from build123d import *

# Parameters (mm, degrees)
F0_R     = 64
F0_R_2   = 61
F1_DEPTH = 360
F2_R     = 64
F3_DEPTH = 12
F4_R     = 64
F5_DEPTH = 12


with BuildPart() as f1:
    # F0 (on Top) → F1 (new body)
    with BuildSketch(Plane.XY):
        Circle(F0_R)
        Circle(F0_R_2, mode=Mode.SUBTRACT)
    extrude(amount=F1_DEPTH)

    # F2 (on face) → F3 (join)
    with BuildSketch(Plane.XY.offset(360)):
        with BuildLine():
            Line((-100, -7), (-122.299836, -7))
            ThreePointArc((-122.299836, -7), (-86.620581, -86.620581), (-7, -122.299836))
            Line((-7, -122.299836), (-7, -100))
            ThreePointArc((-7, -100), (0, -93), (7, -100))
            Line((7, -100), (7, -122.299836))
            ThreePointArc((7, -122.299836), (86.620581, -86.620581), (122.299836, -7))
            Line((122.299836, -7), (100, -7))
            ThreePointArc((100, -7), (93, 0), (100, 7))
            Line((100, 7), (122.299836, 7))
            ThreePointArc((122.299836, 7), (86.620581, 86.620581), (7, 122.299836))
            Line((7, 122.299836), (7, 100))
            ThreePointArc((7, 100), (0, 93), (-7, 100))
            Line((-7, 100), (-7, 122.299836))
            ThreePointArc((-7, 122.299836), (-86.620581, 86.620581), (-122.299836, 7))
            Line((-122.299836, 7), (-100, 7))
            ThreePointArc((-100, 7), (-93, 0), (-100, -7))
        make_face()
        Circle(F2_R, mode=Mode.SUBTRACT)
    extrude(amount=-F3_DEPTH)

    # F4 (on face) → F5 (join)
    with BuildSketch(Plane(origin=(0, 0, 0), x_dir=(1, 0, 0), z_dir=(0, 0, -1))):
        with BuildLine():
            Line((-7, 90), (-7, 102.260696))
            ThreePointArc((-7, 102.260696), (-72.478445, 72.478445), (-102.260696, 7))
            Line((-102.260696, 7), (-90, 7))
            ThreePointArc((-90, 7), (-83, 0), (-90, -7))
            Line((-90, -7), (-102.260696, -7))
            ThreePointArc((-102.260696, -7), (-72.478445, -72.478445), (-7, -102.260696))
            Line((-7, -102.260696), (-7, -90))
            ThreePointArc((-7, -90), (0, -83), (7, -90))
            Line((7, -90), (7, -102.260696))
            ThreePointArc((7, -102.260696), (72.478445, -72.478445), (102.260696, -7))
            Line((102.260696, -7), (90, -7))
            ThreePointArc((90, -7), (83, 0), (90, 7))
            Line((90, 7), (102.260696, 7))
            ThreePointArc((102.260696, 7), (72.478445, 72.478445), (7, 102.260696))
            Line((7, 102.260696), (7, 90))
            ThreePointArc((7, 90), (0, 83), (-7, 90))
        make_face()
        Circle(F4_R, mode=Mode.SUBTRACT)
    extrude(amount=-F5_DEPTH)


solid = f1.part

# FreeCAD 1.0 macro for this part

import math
import FreeCAD as App
import Part
import Sketcher

V = App.Vector
Q = App.Units.Quantity

doc = App.newDocument("Part")
body = doc.addObject("PartDesign::Body", "Body")

# Sketch on XY plane
sketch1 = body.newObject("Sketcher::SketchObject", "Sketch")
sketch1.AttachmentSupport = (doc.getObject("XY_Plane"), [""])
sketch1.MapMode = "FlatFace"
sketch1.addGeometry([
    Part.Circle(V(0, 0, 0), V(0, 0, 1), 64),
    Part.Circle(V(0, 0, 0), V(0, 0, 1), 61),
], False)
sketch1.addConstraint([
    Sketcher.Constraint("Coincident", 0, 3, -1, 1),
    Sketcher.Constraint("Coincident", 1, 3, -1, 1),
    Sketcher.Constraint("Diameter", 0, Q("128 mm")),
    Sketcher.Constraint("Diameter", 1, Q("122 mm")),
])
pad1 = body.newObject("PartDesign::Pad", "Pad")
pad1.Profile = sketch1
pad1.Length = 360

# Sketch on XY plane
sketch2 = body.newObject("Sketcher::SketchObject", "Sketch001")
sketch2.AttachmentSupport = (doc.getObject("XY_Plane"), [""])
sketch2.MapMode = "FlatFace"
sketch2.AttachmentOffset = App.Placement(V(0, 0, 360), App.Rotation())
sketch2.addGeometry([
    Part.LineSegment(V(-100, -7, 0), V(-122, -7, 0)),  # 0
    Part.ArcOfCircle(Part.Circle(V(0, 0, 0), V(0, 0, 1), 122), math.radians(-177), math.radians(-93)),  # 1
    Part.LineSegment(V(-7, -122, 0), V(-7, -100, 0)),  # 2
    Part.ArcOfCircle(Part.Circle(V(0, -100, 0), V(0, 0, 1), 7), math.radians(0), math.radians(180)),  # 3
    Part.LineSegment(V(7, -100, 0), V(7, -122, 0)),  # 4
    Part.ArcOfCircle(Part.Circle(V(0, 0, 0), V(0, 0, 1), 122), math.radians(-87), math.radians(-3)),  # 5
    Part.LineSegment(V(122, -7, 0), V(100, -7, 0)),  # 6
    Part.ArcOfCircle(Part.Circle(V(100, 0, 0), V(0, 0, 1), 7), math.radians(90), math.radians(270)),  # 7
    Part.LineSegment(V(100, 7, 0), V(122, 7, 0)),  # 8
    Part.ArcOfCircle(Part.Circle(V(0, 0, 0), V(0, 0, 1), 122), math.radians(3), math.radians(87)),  # 9
    Part.LineSegment(V(7, 122, 0), V(7, 100, 0)),  # 10
    Part.ArcOfCircle(Part.Circle(V(0, 100, 0), V(0, 0, 1), 7), math.radians(180), math.radians(360)),  # 11
    Part.LineSegment(V(-7, 100, 0), V(-7, 122, 0)),  # 12
    Part.ArcOfCircle(Part.Circle(V(0, 0, 0), V(0, 0, 1), 122), math.radians(93), math.radians(177)),  # 13
    Part.LineSegment(V(-122, 7, 0), V(-100, 7, 0)),  # 14
    Part.ArcOfCircle(Part.Circle(V(-100, 0, 0), V(0, 0, 1), 7), math.radians(-90), math.radians(90)),  # 15
    Part.Circle(V(0, 0, 0), V(0, 0, 1), 64),  # 16
], False)
sketch2.addConstraint([
    Sketcher.Constraint("Coincident", 0, 2, 1, 1),
    Sketcher.Constraint("Coincident", 1, 2, 2, 1),
    Sketcher.Constraint("Tangent", 2, 2, 3, 2),
    Sketcher.Constraint("Tangent", 3, 1, 4, 1),
    Sketcher.Constraint("Coincident", 4, 2, 5, 1),
    Sketcher.Constraint("Coincident", 5, 2, 6, 1),
    Sketcher.Constraint("Tangent", 6, 2, 7, 2),
    Sketcher.Constraint("Tangent", 7, 1, 8, 1),
    Sketcher.Constraint("Coincident", 8, 2, 9, 1),
    Sketcher.Constraint("Coincident", 9, 2, 10, 1),
    Sketcher.Constraint("Tangent", 10, 2, 11, 2),
    Sketcher.Constraint("Tangent", 11, 1, 12, 1),
    Sketcher.Constraint("Coincident", 12, 2, 13, 1),
    Sketcher.Constraint("Coincident", 13, 2, 14, 1),
    Sketcher.Constraint("Tangent", 14, 2, 15, 2),
    Sketcher.Constraint("Tangent", 15, 1, 0, 1),
    Sketcher.Constraint("Horizontal", 0),
    Sketcher.Constraint("Vertical", 2),
    Sketcher.Constraint("Vertical", 4),
    Sketcher.Constraint("Horizontal", 6),
    Sketcher.Constraint("Horizontal", 8),
    Sketcher.Constraint("Vertical", 10),
    Sketcher.Constraint("Vertical", 12),
    Sketcher.Constraint("Horizontal", 14),
    Sketcher.Constraint("Coincident", 1, 3, -1, 1),
    Sketcher.Constraint("Coincident", 5, 3, -1, 1),
    Sketcher.Constraint("Coincident", 9, 3, -1, 1),
    Sketcher.Constraint("Coincident", 13, 3, -1, 1),
    Sketcher.Constraint("Coincident", 16, 3, -1, 1),
    Sketcher.Constraint("Equal", 1, 5),
    Sketcher.Constraint("Equal", 3, 7),
    Sketcher.Constraint("Equal", 5, 9),
    Sketcher.Constraint("Equal", 7, 11),
    Sketcher.Constraint("Equal", 9, 13),
    Sketcher.Constraint("Equal", 11, 15),
    Sketcher.Constraint("Symmetric", 3, 3, 11, 3, -1, 1),
    Sketcher.Constraint("Symmetric", 7, 3, 15, 3, -1, 1),
    Sketcher.Constraint("PointOnObject", 3, 3, -2),
    Sketcher.Constraint("PointOnObject", 7, 3, -1),
    Sketcher.Constraint("Equal", 14, 2),
    Sketcher.Constraint("Diameter", 16, Q("128 mm")),
    Sketcher.Constraint("Radius", 3, Q("7 mm")),
    Sketcher.Constraint("DistanceY", 3, 3, -1, 1, Q("100 mm")),
    Sketcher.Constraint("Radius", 1, Q("122.499997 mm")),
])
pad2 = body.newObject("PartDesign::Pad", "Pad001")
pad2.Profile = sketch2
pad2.Length = 12
pad2.Reversed = True

# Sketch on XY plane
sketch3 = body.newObject("Sketcher::SketchObject", "Sketch002")
sketch3.AttachmentSupport = (doc.getObject("XY_Plane"), [""])
sketch3.MapMode = "FlatFace"
sketch3.addGeometry([
    Part.LineSegment(V(-7, -90, 0), V(-7, -102, 0)),  # 0
    Part.ArcOfCircle(Part.Circle(V(0, 0, 0), V(0, 0, 1), 102), math.radians(-176), math.radians(-94)),  # 1
    Part.LineSegment(V(-102, -7, 0), V(-90, -7, 0)),  # 2
    Part.ArcOfCircle(Part.Circle(V(-90, 0, 0), V(0, 0, 1), 7), math.radians(-90), math.radians(90)),  # 3
    Part.LineSegment(V(-90, 7, 0), V(-102, 7, 0)),  # 4
    Part.ArcOfCircle(Part.Circle(V(0, 0, 0), V(0, 0, 1), 102), math.radians(94), math.radians(176)),  # 5
    Part.LineSegment(V(-7, 102, 0), V(-7, 90, 0)),  # 6
    Part.ArcOfCircle(Part.Circle(V(0, 90, 0), V(0, 0, 1), 7), math.radians(180), math.radians(360)),  # 7
    Part.LineSegment(V(7, 90, 0), V(7, 102, 0)),  # 8
    Part.ArcOfCircle(Part.Circle(V(0, 0, 0), V(0, 0, 1), 102), math.radians(4), math.radians(86)),  # 9
    Part.LineSegment(V(102, 7, 0), V(90, 7, 0)),  # 10
    Part.ArcOfCircle(Part.Circle(V(90, 0, 0), V(0, 0, 1), 7), math.radians(90), math.radians(270)),  # 11
    Part.LineSegment(V(90, -7, 0), V(102, -7, 0)),  # 12
    Part.ArcOfCircle(Part.Circle(V(0, 0, 0), V(0, 0, 1), 102), math.radians(-86), math.radians(-4)),  # 13
    Part.LineSegment(V(7, -102, 0), V(7, -90, 0)),  # 14
    Part.ArcOfCircle(Part.Circle(V(0, -90, 0), V(0, 0, 1), 7), math.radians(0), math.radians(180)),  # 15
    Part.Circle(V(0, 0, 0), V(0, 0, 1), 64),  # 16
], False)
sketch3.addConstraint([
    Sketcher.Constraint("Coincident", 0, 2, 1, 2),
    Sketcher.Constraint("Coincident", 1, 1, 2, 1),
    Sketcher.Constraint("Tangent", 2, 2, 3, 1),
    Sketcher.Constraint("Tangent", 3, 2, 4, 1),
    Sketcher.Constraint("Coincident", 4, 2, 5, 2),
    Sketcher.Constraint("Coincident", 5, 1, 6, 1),
    Sketcher.Constraint("Tangent", 6, 2, 7, 1),
    Sketcher.Constraint("Tangent", 7, 2, 8, 1),
    Sketcher.Constraint("Coincident", 8, 2, 9, 2),
    Sketcher.Constraint("Coincident", 9, 1, 10, 1),
    Sketcher.Constraint("Tangent", 10, 2, 11, 1),
    Sketcher.Constraint("Tangent", 11, 2, 12, 1),
    Sketcher.Constraint("Coincident", 12, 2, 13, 2),
    Sketcher.Constraint("Coincident", 13, 1, 14, 1),
    Sketcher.Constraint("Tangent", 14, 2, 15, 1),
    Sketcher.Constraint("Tangent", 15, 2, 0, 1),
    Sketcher.Constraint("Vertical", 0),
    Sketcher.Constraint("Horizontal", 2),
    Sketcher.Constraint("Horizontal", 4),
    Sketcher.Constraint("Vertical", 6),
    Sketcher.Constraint("Vertical", 8),
    Sketcher.Constraint("Horizontal", 10),
    Sketcher.Constraint("Horizontal", 12),
    Sketcher.Constraint("Vertical", 14),
    Sketcher.Constraint("Coincident", 1, 3, -1, 1),
    Sketcher.Constraint("Coincident", 5, 3, -1, 1),
    Sketcher.Constraint("Coincident", 9, 3, -1, 1),
    Sketcher.Constraint("Coincident", 13, 3, -1, 1),
    Sketcher.Constraint("Coincident", 16, 3, -1, 1),
    Sketcher.Constraint("Equal", 1, 5),
    Sketcher.Constraint("Equal", 3, 7),
    Sketcher.Constraint("Equal", 5, 9),
    Sketcher.Constraint("Equal", 7, 11),
    Sketcher.Constraint("Equal", 9, 13),
    Sketcher.Constraint("Equal", 11, 15),
    Sketcher.Constraint("Symmetric", 3, 3, 11, 3, -1, 1),
    Sketcher.Constraint("Symmetric", 7, 3, 15, 3, -1, 1),
    Sketcher.Constraint("PointOnObject", 3, 3, -1),
    Sketcher.Constraint("PointOnObject", 7, 3, -2),
    Sketcher.Constraint("Equal", 12, 0),
    Sketcher.Constraint("Diameter", 16, Q("128 mm")),
    Sketcher.Constraint("Radius", 3, Q("7 mm")),
    Sketcher.Constraint("Radius", 1, Q("102.499999 mm")),
    Sketcher.Constraint("DistanceX", 3, 3, -1, 1, Q("90 mm")),
])
pad3 = body.newObject("PartDesign::Pad", "Pad002")
pad3.Profile = sketch3
pad3.Length = 12

doc.recompute()
